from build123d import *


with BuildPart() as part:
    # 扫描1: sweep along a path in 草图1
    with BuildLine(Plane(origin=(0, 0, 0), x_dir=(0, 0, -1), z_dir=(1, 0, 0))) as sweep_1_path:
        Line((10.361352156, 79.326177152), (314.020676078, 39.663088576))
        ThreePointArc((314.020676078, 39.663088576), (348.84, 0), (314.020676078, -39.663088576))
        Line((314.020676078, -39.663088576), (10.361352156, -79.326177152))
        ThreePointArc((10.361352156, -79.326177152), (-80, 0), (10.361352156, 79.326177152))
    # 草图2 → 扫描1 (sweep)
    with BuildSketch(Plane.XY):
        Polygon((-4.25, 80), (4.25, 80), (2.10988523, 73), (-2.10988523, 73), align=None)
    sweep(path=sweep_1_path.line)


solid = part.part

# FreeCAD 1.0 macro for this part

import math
import FreeCAD as App
import Part
import Sketcher

V = App.Vector
Q = App.Units.Quantity


def add_polygon(sketch, points):
    """Adds a closed chain of lines whose ends are joined by coincident constraints."""
    first, n = sketch.GeometryCount, len(points)
    for a, b in zip(points, points[1:] + points[:1]):
        sketch.addGeometry(Part.LineSegment(App.Vector(*a, 0), App.Vector(*b, 0)), False)
    for i in range(n):
        sketch.addConstraint(Sketcher.Constraint("Coincident", first + i, 2, first + (i + 1) % n, 1))

doc = App.newDocument("Part")
params = doc.addObject("Spreadsheet::Sheet", "Params")
for row, (alias, value) in enumerate([
    ("sketch1_width", "8.5 mm"),
    ("sketch2_radius", "40 mm"),
    ("sketch2_radius2", "80 mm"),
], start=1):
    params.set(f"A{row}", alias)
    params.set(f"B{row}", "=" + value)
    params.setAlias(f"B{row}", alias)

body = doc.addObject("PartDesign::Body", "Body")

# Sketch on XY plane
sketch1 = doc.addObject("Sketcher::SketchObject", "Sketch")
body.addObject(sketch1)
sketch1.AttachmentSupport = (doc.XY_Plane, [""])
sketch1.MapMode = "FlatFace"
add_polygon(sketch1, [(4.25, 80), (-4.25, 80), (-2.109885, 73), (2.109885, 73)])  # lines 0-3
sketch1.addConstraint([
    Sketcher.Constraint("Horizontal", 0),
    Sketcher.Constraint("Horizontal", 2),
    Sketcher.Constraint("Equal", 1, 3),
    Sketcher.Constraint("Angle", 1, Q("-73 deg")),
    Sketcher.Constraint("DistanceX", 0, 2, 0, 1, 8.5),
    Sketcher.Constraint("DistanceY", -1, 1, 0, 2, 80.0),
    Sketcher.Constraint("DistanceY", -1, 1, 1, 2, 73.0),
    Sketcher.Constraint("DistanceX", 0, 2, -1, 1, 4.25),
])
sketch1.setExpression("Constraints[8]", "Params.sketch1_width")

# Sketch on YZ plane
sketch2 = doc.addObject("Sketcher::SketchObject", "Sketch001")
body.addObject(sketch2)
sketch2.AttachmentSupport = (doc.YZ_Plane, [""])
sketch2.MapMode = "FlatFace"
sketch2.addGeometry([
    Part.LineSegment(V(79.326177, -10.361352, 0), V(39.663089, -314.020676, 0)),
    Part.ArcOfCircle(Part.Circle(V(0, -308.84, 0), V(0, 0, 1), 40), math.radians(-172.558323), math.radians(-7.441677)),
    Part.LineSegment(V(-39.663089, -314.020676, 0), V(-79.326177, -10.361352, 0)),
    Part.ArcOfCircle(Part.Circle(V(0, 0, 0), V(0, 0, 1), 80), math.radians(-7.441677), math.radians(187.441677)),
], False)
sketch2.addConstraint([
    Sketcher.Constraint("Tangent", 0, 2, 1, 2),
    Sketcher.Constraint("Tangent", 1, 1, 2, 1),
    Sketcher.Constraint("Tangent", 2, 2, 3, 2),
    Sketcher.Constraint("Tangent", 3, 1, 0, 1),
    Sketcher.Constraint("Coincident", 3, 3, -1, 1),
    Sketcher.Constraint("PointOnObject", 1, 3, -2),
    Sketcher.Constraint("Radius", 1, 40.0),
    Sketcher.Constraint("Radius", 3, 80.0),
    Sketcher.Constraint("DistanceY", 1, 3, -1, 1, 308.84),
])
sketch2.setExpression("Constraints[6]", "Params.sketch2_radius")
sketch2.setExpression("Constraints[7]", "Params.sketch2_radius2")
doc.recompute()

additivepipe = doc.addObject("PartDesign::AdditivePipe", "AdditivePipe")
body.addObject(additivepipe)
additivepipe.Profile = sketch1
additivepipe.Spine = (sketch2, ["Edge1", "Edge2", "Edge3", "Edge4"])

doc.recompute()
